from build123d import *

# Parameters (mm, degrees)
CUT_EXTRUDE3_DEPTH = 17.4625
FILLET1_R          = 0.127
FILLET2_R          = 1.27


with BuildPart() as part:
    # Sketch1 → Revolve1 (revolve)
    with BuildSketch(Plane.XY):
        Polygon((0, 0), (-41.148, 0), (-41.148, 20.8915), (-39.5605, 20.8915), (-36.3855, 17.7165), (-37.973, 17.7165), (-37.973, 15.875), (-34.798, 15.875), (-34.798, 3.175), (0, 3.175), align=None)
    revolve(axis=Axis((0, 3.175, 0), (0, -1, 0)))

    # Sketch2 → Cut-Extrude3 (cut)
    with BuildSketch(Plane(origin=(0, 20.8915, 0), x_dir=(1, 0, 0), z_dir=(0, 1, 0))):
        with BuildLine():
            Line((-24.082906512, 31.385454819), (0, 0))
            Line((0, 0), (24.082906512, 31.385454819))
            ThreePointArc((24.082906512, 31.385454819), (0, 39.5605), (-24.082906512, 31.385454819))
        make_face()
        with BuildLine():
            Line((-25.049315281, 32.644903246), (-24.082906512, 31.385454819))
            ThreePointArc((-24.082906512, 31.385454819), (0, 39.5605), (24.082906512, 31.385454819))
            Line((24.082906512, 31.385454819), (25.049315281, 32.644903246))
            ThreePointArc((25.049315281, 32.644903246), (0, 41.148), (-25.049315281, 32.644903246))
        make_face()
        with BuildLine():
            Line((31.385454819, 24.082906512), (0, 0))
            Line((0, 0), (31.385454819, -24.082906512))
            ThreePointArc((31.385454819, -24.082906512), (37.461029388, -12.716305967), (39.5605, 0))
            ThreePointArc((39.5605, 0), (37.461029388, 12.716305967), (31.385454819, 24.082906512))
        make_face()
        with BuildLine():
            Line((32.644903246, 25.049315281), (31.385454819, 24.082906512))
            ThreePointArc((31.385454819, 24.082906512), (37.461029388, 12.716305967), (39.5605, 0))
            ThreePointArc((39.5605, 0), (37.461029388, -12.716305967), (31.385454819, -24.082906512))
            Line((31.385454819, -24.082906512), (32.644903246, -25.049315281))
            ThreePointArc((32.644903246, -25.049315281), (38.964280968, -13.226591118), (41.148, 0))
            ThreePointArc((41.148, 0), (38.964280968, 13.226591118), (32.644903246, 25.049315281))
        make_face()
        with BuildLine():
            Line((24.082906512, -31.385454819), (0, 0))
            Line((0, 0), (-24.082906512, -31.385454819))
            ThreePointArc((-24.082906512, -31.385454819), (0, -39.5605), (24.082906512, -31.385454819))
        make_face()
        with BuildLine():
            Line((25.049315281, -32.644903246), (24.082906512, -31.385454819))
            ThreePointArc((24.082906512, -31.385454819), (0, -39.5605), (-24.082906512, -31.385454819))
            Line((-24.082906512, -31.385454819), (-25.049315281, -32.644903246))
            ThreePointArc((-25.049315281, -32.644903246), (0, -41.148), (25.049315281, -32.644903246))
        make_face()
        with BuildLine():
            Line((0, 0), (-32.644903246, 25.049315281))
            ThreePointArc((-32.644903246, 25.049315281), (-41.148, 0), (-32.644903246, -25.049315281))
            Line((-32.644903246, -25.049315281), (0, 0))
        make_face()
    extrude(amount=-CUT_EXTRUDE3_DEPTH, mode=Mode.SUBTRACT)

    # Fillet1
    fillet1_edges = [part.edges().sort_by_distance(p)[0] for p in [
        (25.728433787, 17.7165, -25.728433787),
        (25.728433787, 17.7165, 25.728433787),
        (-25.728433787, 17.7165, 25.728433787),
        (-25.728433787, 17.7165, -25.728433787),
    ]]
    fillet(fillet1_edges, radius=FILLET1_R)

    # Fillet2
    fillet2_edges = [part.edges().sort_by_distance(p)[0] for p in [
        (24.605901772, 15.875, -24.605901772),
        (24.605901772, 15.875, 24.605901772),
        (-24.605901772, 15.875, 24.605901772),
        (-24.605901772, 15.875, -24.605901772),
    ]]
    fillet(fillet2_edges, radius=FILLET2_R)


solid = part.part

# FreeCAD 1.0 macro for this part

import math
import FreeCAD as App
import Part
import Sketcher
Q = App.Units.Quantity


def edges_at(feature, points):
    """Names of the edges that pass closest to the given points."""
    edges = feature.Shape.Edges
    near = lambda p: min(range(len(edges)), key=lambda i: edges[i].distToShape(Part.Vertex(*p))[0])
    return sorted({f"Edge{near(p) + 1}" for p in points})

doc = App.newDocument("Part")
params = doc.addObject("Spreadsheet::Sheet", "Params")
for row, (alias, value) in enumerate([
    ("sketch1_height", "0.5 in"),
    ("sketch1_width", "1.62 in"),
    ("sketch1_width2", "1.37 in"),
    ("sketch1_width3", "0.125 in"),
    ("sketch1_width4", "0.0625 in"),
    ("revolution_angle", "360 deg"),
    ("sketch2_radius", "1.62 in"),
    ("sketch2_length", "0.0625 in"),
    ("pocket1_length", "0.6875 in"),
    ("fillet_radius", "0.005 in"),
    ("fillet2_radius", "0.05 in"),
], start=1):
    params.set(f"A{row}", alias)
    params.set(f"B{row}", "=" + value)
    params.setAlias(f"B{row}", alias)

body = doc.addObject("PartDesign::Body", "Body")

sketch1 = body.newObject("Sketcher::SketchObject", "Sketch")
sketch1.AttachmentSupport = (doc.getObject("XY_Plane"), [""])
sketch1.MapMode = "FlatFace"
sketch1.addGeometry(Part.LineSegment(App.Vector(-41.1, 0, 0), App.Vector(0, 0, 0)), False)
sketch1.addGeometry(Part.LineSegment(App.Vector(0, 0, 0), App.Vector(0, 3.2, 0)), False)
sketch1.addGeometry(Part.LineSegment(App.Vector(0, 3.2, 0), App.Vector(-34.8, 3.2, 0)), False)
sketch1.addGeometry(Part.LineSegment(App.Vector(-34.8, 3.2, 0), App.Vector(-34.8, 15.9, 0)), False)
sketch1.addGeometry(Part.LineSegment(App.Vector(-34.8, 15.9, 0), App.Vector(-38, 15.9, 0)), False)
sketch1.addGeometry(Part.LineSegment(App.Vector(-38, 15.9, 0), App.Vector(-38, 17.7, 0)), False)
sketch1.addGeometry(Part.LineSegment(App.Vector(-38, 17.7, 0), App.Vector(-36.4, 17.7, 0)), False)
sketch1.addGeometry(Part.LineSegment(App.Vector(-36.4, 17.7, 0), App.Vector(-39.6, 20.9, 0)), False)
sketch1.addGeometry(Part.LineSegment(App.Vector(-39.6, 20.9, 0), App.Vector(-41.1, 20.9, 0)), False)
sketch1.addGeometry(Part.LineSegment(App.Vector(-41.1, 20.9, 0), App.Vector(-41.1, 0, 0)), False)
sketch1.addConstraint(Sketcher.Constraint("Coincident", 0, 2, 1, 1))
sketch1.addConstraint(Sketcher.Constraint("Coincident", 1, 2, 2, 1))
sketch1.addConstraint(Sketcher.Constraint("Coincident", 2, 2, 3, 1))
sketch1.addConstraint(Sketcher.Constraint("Coincident", 3, 2, 4, 1))
sketch1.addConstraint(Sketcher.Constraint("Coincident", 4, 2, 5, 1))
sketch1.addConstraint(Sketcher.Constraint("Coincident", 5, 2, 6, 1))
sketch1.addConstraint(Sketcher.Constraint("Coincident", 6, 2, 7, 1))
sketch1.addConstraint(Sketcher.Constraint("Coincident", 7, 2, 8, 1))
sketch1.addConstraint(Sketcher.Constraint("Coincident", 8, 2, 9, 1))
sketch1.addConstraint(Sketcher.Constraint("Coincident", 9, 2, 0, 1))
sketch1.addConstraint(Sketcher.Constraint("Horizontal", 0))
sketch1.addConstraint(Sketcher.Constraint("Vertical", 1))
sketch1.addConstraint(Sketcher.Constraint("Horizontal", 2))
sketch1.addConstraint(Sketcher.Constraint("Vertical", 3))
sketch1.addConstraint(Sketcher.Constraint("Horizontal", 4))
sketch1.addConstraint(Sketcher.Constraint("Vertical", 5))
sketch1.addConstraint(Sketcher.Constraint("Horizontal", 6))
sketch1.addConstraint(Sketcher.Constraint("Horizontal", 8))
sketch1.addConstraint(Sketcher.Constraint("Vertical", 9))
sketch1.addConstraint(Sketcher.Constraint("Coincident", 0, 2, -1, 1))
sketch1.addConstraint(Sketcher.Constraint("Equal", 6, 8))
sketch1.addConstraint(Sketcher.Constraint("Equal", 4, 1))
sketch1.addConstraint(Sketcher.Constraint("DistanceY", 3, 1, 3, 2, Q("0.5 in")))
sketch1.addConstraint(Sketcher.Constraint("Angle", 7, Q("135 deg")))
sketch1.addConstraint(Sketcher.Constraint("DistanceX", 0, 1, 0, 2, Q("1.62 in")))
sketch1.addConstraint(Sketcher.Constraint("DistanceX", 2, 2, 2, 1, Q("1.37 in")))
sketch1.addConstraint(Sketcher.Constraint("DistanceX", 4, 2, 4, 1, Q("0.125 in")))
sketch1.addConstraint(Sketcher.Constraint("DistanceX", 6, 1, 6, 2, Q("0.0625 in")))
sketch1.addConstraint(Sketcher.Constraint("DistanceY", 5, 1, 5, 2, Q("0.0725 in")))
sketch1.setExpression("Constraints[22]", "Params.sketch1_height")
sketch1.setExpression("Constraints[24]", "Params.sketch1_width")
sketch1.setExpression("Constraints[25]", "Params.sketch1_width2")
sketch1.setExpression("Constraints[26]", "Params.sketch1_width3")
sketch1.setExpression("Constraints[27]", "Params.sketch1_width4")
revolution = body.newObject("PartDesign::Revolution", "Revolution")
revolution.Profile = sketch1
revolution.ReferenceAxis = (sketch1, ["V_Axis"])
revolution.setExpression("Angle", "Params.revolution_angle")

sketch2 = body.newObject("Sketcher::SketchObject", "Sketch001")
sketch2.AttachmentSupport = (doc.getObject("XZ_Plane"), [""])
sketch2.MapMode = "FlatFace"
sketch2.AttachmentOffset = App.Placement(App.Vector(0, 0, -0.8225 * 25.4), App.Rotation())
sketch2.addGeometry(Part.LineSegment(App.Vector(-24.1, -31.4, 0), App.Vector(0, 0, 0)), False)
sketch2.addGeometry(Part.LineSegment(App.Vector(0, 0, 0), App.Vector(24.1, -31.4, 0)), False)
sketch2.addGeometry(Part.LineSegment(App.Vector(24.1, -31.4, 0), App.Vector(25, -32.6, 0)), False)
sketch2.addGeometry(Part.ArcOfCircle(Part.Circle(App.Vector(0, 0, 0), App.Vector(0, 0, 1), 41.1), math.radians(-128), math.radians(-52)), False)
sketch2.addGeometry(Part.LineSegment(App.Vector(-25, -32.6, 0), App.Vector(-24.1, -31.4, 0)), False)
sketch2.addGeometry(Part.LineSegment(App.Vector(31.4, -24.1, 0), App.Vector(0, 0, 0)), False)
sketch2.addGeometry(Part.LineSegment(App.Vector(0, 0, 0), App.Vector(31.4, 24.1, 0)), False)
sketch2.addGeometry(Part.LineSegment(App.Vector(31.4, 24.1, 0), App.Vector(32.6, 25, 0)), False)
sketch2.addGeometry(Part.ArcOfCircle(Part.Circle(App.Vector(0, 0, 0), App.Vector(0, 0, 1), 41.1), math.radians(0), math.radians(37)), False)
sketch2.addGeometry(Part.ArcOfCircle(Part.Circle(App.Vector(0, 0, 0), App.Vector(0, 0, 1), 41.1), math.radians(-37), math.radians(0)), False)
sketch2.addGeometry(Part.LineSegment(App.Vector(32.6, -25, 0), App.Vector(31.4, -24.1, 0)), False)
sketch2.addGeometry(Part.LineSegment(App.Vector(24.1, 31.4, 0), App.Vector(0, 0, 0)), False)
sketch2.addGeometry(Part.LineSegment(App.Vector(0, 0, 0), App.Vector(-24.1, 31.4, 0)), False)
sketch2.addGeometry(Part.LineSegment(App.Vector(-24.1, 31.4, 0), App.Vector(-25, 32.6, 0)), False)
sketch2.addGeometry(Part.ArcOfCircle(Part.Circle(App.Vector(0, 0, 0), App.Vector(0, 0, 1), 41.1), math.radians(52), math.radians(128)), False)
sketch2.addGeometry(Part.LineSegment(App.Vector(25, 32.6, 0), App.Vector(24.1, 31.4, 0)), False)
sketch2.addGeometry(Part.LineSegment(App.Vector(0, 0, 0), App.Vector(-32.6, -25, 0)), False)
sketch2.addGeometry(Part.ArcOfCircle(Part.Circle(App.Vector(0, 0, 0), App.Vector(0, 0, 1), 41.1), math.radians(142), math.radians(218)), False)
sketch2.addGeometry(Part.LineSegment(App.Vector(-32.6, 25, 0), App.Vector(0, 0, 0)), False)
sketch2.addConstraint(Sketcher.Constraint("Coincident", 0, 2, 1, 1))
sketch2.addConstraint(Sketcher.Constraint("Coincident", 1, 2, 2, 1))
sketch2.addConstraint(Sketcher.Constraint("Coincident", 2, 2, 3, 2))
sketch2.addConstraint(Sketcher.Constraint("Coincident", 3, 1, 4, 1))
sketch2.addConstraint(Sketcher.Constraint("Coincident", 4, 2, 0, 1))
sketch2.addConstraint(Sketcher.Constraint("Coincident", 5, 2, 6, 1))
sketch2.addConstraint(Sketcher.Constraint("Coincident", 6, 2, 7, 1))
sketch2.addConstraint(Sketcher.Constraint("Coincident", 7, 2, 8, 2))
sketch2.addConstraint(Sketcher.Constraint("Tangent", 8, 1, 9, 2))
sketch2.addConstraint(Sketcher.Constraint("Coincident", 9, 1, 10, 1))
sketch2.addConstraint(Sketcher.Constraint("Coincident", 10, 2, 5, 1))
sketch2.addConstraint(Sketcher.Constraint("Coincident", 11, 2, 12, 1))
sketch2.addConstraint(Sketcher.Constraint("Coincident", 12, 2, 13, 1))
sketch2.addConstraint(Sketcher.Constraint("Coincident", 13, 2, 14, 2))
sketch2.addConstraint(Sketcher.Constraint("Coincident", 14, 1, 15, 1))
sketch2.addConstraint(Sketcher.Constraint("Coincident", 15, 2, 11, 1))
sketch2.addConstraint(Sketcher.Constraint("Coincident", 16, 2, 17, 2))
sketch2.addConstraint(Sketcher.Constraint("Coincident", 17, 1, 18, 1))
sketch2.addConstraint(Sketcher.Constraint("Coincident", 18, 2, 16, 1))
sketch2.addConstraint(Sketcher.Constraint("Coincident", 3, 3, -1, 1))
sketch2.addConstraint(Sketcher.Constraint("Coincident", 8, 3, -1, 1))
sketch2.addConstraint(Sketcher.Constraint("Coincident", 14, 3, -1, 1))
sketch2.addConstraint(Sketcher.Constraint("Coincident", 17, 3, -1, 1))
sketch2.addConstraint(Sketcher.Constraint("Coincident", 0, 2, -1, 1))
sketch2.addConstraint(Sketcher.Constraint("Coincident", 5, 2, -1, 1))
sketch2.addConstraint(Sketcher.Constraint("Coincident", 11, 2, -1, 1))
sketch2.addConstraint(Sketcher.Constraint("Coincident", 18, 2, -1, 1))
sketch2.addConstraint(Sketcher.Constraint("Equal", 3, 8))
sketch2.addConstraint(Sketcher.Constraint("Equal", 8, 9))
sketch2.addConstraint(Sketcher.Constraint("Equal", 9, 14))
sketch2.addConstraint(Sketcher.Constraint("Equal", 14, 17))
sketch2.addConstraint(Sketcher.Constraint("Symmetric", 1, 2, 12, 2, -1, 1))
sketch2.addConstraint(Sketcher.Constraint("Symmetric", 4, 2, 15, 2, -1, 1))
sketch2.addConstraint(Sketcher.Constraint("Symmetric", 1, 2, 4, 2, -2))
sketch2.addConstraint(Sketcher.Constraint("Symmetric", 6, 2, 10, 2, -1))
sketch2.addConstraint(Sketcher.Constraint("PointOnObject", 8, 1, -1))
sketch2.addConstraint(Sketcher.Constraint("Parallel", 1, 2))
sketch2.addConstraint(Sketcher.Constraint("Parallel", 0, 4))
sketch2.addConstraint(Sketcher.Constraint("Perpendicular", 4, 5))
sketch2.addConstraint(Sketcher.Constraint("Parallel", 6, 7))
sketch2.addConstraint(Sketcher.Constraint("Parallel", 5, 10))
sketch2.addConstraint(Sketcher.Constraint("Parallel", 12, 13))
sketch2.addConstraint(Sketcher.Constraint("Parallel", 11, 15))
sketch2.addConstraint(Sketcher.Constraint("Perpendicular", 13, 16))
sketch2.addConstraint(Sketcher.Constraint("Perpendicular", 15, 18))
sketch2.addConstraint(Sketcher.Constraint("Equal", 1, 5))
sketch2.addConstraint(Sketcher.Constraint("Radius", 3, Q("1.62 in")))
sketch2.addConstraint(Sketcher.Constraint("Angle", 0, Q("52.5 deg")))
sketch2.addConstraint(Sketcher.Constraint("Distance", 2, Q("0.0625 in")))
sketch2.setExpression("Constraints[46]", "Params.sketch2_radius")
sketch2.setExpression("Constraints[48]", "Params.sketch2_length")
pocket1 = body.newObject("PartDesign::Pocket", "Pocket")
pocket1.Profile = sketch2
pocket1.setExpression("Length", "Params.pocket1_length")
pocket1.Reversed = True
doc.recompute()

fillet = body.newObject("PartDesign::Fillet", "Fillet")
fillet.Base = (pocket1, edges_at(pocket1, [
    (25.728, 17.716, -25.728),
    (25.728, 17.716, 25.728),
    (-25.728, 17.716, 25.728),
    (-25.728, 17.716, -25.728),
]))
fillet.setExpression("Radius", "Params.fillet_radius")
doc.recompute()

fillet2 = body.newObject("PartDesign::Fillet", "Fillet001")
fillet2.Base = (fillet, edges_at(fillet, [
    (24.606, 15.875, -24.606),
    (24.606, 15.875, 24.606),
    (-24.606, 15.875, 24.606),
    (-24.606, 15.875, -24.606),
]))
fillet2.setExpression("Radius", "Params.fillet2_radius")

doc.recompute()
